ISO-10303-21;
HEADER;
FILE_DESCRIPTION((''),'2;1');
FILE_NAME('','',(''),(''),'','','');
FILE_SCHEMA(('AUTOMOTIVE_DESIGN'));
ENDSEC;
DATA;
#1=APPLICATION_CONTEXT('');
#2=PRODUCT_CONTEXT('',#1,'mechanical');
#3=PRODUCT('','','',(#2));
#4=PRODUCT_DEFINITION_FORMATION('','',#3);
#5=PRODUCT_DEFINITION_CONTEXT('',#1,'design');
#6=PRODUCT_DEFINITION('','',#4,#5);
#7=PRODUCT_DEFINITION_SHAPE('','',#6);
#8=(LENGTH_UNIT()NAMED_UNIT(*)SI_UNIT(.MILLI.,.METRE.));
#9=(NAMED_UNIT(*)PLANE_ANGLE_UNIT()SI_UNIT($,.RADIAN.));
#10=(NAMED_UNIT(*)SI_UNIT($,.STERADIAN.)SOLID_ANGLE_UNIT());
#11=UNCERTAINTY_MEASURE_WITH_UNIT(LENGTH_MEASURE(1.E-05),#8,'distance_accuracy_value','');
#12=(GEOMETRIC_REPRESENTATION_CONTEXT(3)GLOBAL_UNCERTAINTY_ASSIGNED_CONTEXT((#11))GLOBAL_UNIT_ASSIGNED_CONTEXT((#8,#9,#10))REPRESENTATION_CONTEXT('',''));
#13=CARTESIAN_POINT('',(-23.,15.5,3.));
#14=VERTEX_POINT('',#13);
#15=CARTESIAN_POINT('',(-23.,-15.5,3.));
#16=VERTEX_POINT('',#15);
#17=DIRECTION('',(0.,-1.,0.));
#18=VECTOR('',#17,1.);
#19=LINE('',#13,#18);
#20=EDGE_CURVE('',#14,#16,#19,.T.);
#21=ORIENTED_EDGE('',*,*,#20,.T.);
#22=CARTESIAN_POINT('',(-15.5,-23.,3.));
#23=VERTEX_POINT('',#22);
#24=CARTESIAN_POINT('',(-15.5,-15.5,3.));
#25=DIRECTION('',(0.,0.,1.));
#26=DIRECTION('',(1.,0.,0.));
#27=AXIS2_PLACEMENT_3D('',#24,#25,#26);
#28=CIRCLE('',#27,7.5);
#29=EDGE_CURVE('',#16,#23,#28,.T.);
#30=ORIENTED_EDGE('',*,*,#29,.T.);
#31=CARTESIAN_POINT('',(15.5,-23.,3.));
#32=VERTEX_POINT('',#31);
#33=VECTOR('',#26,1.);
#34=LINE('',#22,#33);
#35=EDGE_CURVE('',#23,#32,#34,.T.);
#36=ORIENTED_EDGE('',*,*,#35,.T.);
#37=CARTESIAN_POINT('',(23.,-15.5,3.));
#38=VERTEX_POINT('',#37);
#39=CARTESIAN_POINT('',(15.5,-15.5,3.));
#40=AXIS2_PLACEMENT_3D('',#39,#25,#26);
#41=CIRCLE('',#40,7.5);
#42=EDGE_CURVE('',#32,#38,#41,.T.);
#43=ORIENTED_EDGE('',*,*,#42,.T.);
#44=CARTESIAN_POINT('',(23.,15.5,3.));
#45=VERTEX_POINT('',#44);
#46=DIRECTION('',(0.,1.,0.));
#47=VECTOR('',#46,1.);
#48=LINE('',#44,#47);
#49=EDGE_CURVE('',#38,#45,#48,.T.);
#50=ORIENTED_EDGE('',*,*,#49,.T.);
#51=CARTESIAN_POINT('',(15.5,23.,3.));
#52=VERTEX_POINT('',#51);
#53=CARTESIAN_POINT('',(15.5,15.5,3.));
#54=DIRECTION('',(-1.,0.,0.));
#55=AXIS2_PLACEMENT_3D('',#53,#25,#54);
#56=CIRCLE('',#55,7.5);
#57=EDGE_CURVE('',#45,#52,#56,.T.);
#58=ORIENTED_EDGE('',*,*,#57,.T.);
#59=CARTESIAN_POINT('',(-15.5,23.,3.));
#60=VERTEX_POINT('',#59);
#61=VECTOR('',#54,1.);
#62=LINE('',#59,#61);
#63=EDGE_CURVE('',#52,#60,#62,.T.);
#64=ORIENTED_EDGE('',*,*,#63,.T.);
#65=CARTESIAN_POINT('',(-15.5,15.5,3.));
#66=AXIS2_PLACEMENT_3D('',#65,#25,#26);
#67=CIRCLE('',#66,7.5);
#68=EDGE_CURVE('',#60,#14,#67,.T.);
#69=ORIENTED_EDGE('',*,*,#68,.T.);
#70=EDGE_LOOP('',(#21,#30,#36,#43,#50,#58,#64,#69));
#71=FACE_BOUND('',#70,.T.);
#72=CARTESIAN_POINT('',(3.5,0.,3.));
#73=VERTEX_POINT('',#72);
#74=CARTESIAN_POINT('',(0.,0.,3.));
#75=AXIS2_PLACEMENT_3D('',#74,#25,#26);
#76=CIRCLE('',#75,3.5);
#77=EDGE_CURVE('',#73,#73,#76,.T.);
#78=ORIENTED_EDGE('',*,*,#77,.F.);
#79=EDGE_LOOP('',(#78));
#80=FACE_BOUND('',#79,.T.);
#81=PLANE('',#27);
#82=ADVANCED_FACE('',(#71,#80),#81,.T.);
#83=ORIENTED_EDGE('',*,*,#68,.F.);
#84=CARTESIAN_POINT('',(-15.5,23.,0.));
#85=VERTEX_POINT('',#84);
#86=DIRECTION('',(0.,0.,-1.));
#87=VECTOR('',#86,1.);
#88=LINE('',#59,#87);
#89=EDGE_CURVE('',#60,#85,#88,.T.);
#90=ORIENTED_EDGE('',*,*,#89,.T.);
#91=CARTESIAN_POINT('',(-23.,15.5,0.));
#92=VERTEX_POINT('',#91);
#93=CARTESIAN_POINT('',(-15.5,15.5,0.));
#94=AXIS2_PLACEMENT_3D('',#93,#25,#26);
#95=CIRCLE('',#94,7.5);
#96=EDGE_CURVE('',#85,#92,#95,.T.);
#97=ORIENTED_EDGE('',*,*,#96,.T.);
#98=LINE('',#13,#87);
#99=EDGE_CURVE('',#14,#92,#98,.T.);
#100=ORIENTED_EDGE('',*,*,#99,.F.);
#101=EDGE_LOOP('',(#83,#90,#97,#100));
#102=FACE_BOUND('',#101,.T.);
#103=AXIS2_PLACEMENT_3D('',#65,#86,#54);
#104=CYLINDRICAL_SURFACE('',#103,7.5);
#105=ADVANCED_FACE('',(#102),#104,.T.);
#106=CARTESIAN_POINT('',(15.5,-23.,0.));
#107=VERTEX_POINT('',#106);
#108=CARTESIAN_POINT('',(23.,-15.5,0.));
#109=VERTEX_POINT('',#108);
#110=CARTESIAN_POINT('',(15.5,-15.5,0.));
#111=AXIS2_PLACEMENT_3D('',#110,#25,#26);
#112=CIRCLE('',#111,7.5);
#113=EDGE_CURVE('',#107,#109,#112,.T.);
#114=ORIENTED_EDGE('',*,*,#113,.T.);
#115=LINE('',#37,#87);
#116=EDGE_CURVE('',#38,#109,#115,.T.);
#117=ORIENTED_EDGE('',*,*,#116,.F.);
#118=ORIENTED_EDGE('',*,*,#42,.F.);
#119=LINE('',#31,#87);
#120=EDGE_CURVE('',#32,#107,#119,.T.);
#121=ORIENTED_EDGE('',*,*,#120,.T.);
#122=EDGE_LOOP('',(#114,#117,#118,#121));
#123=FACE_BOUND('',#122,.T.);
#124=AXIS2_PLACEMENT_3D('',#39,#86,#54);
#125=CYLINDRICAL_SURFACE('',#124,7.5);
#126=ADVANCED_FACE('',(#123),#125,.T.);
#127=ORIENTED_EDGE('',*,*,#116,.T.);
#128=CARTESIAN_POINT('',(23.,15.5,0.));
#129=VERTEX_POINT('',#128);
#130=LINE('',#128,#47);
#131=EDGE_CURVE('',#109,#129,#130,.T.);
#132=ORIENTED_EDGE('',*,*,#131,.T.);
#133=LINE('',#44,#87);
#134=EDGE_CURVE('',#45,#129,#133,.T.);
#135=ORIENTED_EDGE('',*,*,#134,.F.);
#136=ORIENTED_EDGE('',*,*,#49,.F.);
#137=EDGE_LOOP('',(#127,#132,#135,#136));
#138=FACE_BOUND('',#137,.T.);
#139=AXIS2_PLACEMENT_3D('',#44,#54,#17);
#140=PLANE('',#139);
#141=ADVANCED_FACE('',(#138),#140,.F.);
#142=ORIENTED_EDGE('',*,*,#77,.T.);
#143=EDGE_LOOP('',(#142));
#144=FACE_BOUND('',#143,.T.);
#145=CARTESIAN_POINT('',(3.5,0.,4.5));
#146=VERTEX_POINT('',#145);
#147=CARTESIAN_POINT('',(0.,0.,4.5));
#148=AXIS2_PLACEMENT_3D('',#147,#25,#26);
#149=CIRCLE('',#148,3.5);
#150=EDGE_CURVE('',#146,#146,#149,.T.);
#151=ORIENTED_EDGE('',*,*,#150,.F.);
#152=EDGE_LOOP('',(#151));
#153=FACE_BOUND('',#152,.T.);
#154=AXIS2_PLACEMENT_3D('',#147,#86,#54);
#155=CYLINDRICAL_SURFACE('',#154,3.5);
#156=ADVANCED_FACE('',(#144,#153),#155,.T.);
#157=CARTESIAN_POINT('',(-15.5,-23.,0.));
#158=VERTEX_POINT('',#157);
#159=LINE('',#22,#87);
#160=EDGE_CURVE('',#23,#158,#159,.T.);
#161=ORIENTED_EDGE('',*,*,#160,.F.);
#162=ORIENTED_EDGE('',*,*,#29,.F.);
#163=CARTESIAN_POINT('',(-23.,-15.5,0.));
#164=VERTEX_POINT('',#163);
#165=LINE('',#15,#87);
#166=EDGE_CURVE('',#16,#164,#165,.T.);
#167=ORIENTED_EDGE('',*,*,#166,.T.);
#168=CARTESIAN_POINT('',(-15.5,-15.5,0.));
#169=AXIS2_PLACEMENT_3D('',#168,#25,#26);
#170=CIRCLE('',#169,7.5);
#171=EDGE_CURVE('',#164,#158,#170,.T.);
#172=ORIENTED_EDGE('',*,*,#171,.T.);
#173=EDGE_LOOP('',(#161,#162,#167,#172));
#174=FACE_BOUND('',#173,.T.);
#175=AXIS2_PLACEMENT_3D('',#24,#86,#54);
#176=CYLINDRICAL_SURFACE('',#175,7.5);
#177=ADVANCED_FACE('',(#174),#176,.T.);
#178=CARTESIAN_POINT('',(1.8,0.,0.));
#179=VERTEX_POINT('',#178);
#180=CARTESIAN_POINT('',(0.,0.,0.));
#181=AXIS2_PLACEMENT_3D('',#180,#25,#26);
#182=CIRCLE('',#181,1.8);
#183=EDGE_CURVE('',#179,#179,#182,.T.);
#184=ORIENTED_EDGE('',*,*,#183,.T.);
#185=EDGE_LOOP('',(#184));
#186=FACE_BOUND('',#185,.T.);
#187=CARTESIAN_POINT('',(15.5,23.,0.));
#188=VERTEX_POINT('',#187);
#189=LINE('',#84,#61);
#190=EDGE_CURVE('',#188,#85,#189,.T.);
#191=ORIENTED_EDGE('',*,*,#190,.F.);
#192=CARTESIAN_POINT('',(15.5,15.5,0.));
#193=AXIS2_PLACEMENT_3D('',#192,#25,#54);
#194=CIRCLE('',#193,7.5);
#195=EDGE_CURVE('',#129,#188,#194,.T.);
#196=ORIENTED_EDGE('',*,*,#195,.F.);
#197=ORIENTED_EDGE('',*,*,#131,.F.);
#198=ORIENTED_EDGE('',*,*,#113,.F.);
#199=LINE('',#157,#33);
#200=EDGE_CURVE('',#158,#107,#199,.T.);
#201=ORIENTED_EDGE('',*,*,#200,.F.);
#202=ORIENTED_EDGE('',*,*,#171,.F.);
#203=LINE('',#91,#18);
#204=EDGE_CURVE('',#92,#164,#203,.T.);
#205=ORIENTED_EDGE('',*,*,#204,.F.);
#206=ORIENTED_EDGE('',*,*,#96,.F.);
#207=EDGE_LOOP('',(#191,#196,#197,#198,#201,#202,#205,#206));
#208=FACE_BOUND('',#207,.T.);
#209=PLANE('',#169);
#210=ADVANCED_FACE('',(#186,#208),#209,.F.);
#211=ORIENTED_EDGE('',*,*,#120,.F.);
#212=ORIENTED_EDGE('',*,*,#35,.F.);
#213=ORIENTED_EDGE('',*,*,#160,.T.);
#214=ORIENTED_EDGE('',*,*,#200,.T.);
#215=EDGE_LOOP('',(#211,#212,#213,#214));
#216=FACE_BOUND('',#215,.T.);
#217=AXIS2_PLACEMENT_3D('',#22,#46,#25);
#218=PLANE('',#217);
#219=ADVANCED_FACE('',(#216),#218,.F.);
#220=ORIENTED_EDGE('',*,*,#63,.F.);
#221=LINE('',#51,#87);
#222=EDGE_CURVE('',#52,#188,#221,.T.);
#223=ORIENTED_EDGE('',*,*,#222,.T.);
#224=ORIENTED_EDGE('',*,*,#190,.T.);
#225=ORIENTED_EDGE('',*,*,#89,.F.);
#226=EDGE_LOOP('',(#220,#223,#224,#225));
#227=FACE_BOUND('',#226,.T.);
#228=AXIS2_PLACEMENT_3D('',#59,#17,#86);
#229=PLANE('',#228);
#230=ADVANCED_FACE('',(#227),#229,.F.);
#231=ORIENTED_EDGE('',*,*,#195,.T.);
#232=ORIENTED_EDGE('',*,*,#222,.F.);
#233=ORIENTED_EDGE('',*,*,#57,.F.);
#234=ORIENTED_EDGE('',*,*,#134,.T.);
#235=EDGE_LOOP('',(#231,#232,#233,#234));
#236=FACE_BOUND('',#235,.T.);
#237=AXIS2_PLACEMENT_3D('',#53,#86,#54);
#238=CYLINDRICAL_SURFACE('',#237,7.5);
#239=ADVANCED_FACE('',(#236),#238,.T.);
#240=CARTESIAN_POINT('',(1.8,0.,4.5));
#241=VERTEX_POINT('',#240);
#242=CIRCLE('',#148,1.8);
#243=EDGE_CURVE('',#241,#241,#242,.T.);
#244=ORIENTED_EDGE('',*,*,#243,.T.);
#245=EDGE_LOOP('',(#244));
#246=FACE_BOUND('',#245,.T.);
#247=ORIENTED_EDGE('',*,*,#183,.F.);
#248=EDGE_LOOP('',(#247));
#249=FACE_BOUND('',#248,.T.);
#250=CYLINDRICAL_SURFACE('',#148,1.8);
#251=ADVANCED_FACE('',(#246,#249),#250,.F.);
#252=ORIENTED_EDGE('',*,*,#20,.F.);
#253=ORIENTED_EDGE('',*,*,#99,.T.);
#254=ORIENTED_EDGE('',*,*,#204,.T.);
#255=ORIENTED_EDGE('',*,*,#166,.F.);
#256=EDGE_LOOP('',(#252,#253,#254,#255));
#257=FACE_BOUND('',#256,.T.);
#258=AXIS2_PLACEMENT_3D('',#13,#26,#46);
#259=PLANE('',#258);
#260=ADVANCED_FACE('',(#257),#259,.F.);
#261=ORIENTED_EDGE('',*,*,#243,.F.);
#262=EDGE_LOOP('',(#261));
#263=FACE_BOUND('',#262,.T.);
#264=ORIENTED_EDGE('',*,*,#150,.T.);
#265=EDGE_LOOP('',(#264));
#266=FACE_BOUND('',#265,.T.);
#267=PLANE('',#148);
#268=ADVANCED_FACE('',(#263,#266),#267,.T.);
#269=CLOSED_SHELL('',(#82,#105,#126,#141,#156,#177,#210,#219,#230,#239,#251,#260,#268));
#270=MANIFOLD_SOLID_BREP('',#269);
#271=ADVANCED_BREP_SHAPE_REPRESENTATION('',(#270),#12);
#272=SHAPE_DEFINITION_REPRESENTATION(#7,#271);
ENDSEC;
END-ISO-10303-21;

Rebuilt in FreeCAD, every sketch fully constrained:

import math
import FreeCAD as App
import Part
import Sketcher
from FreeCAD import Vector
Q = App.Units.Quantity

doc = App.newDocument("Part")
body = doc.addObject("PartDesign::Body", "Body")

sketch1 = body.newObject("Sketcher::SketchObject", "Sketch")
sketch1.AttachmentSupport = (doc.getObject("XY_Plane"), [""])
sketch1.MapMode = "FlatFace"
sketch1.addGeometry(Part.LineSegment(Vector(16, 23, 0), Vector(-16, 23, 0)), False)
sketch1.addGeometry(Part.ArcOfCircle(Part.Circle(Vector(-16, 16, 0), Vector(0, 0, 1), 8), math.radians(90), math.radians(180)), False)
sketch1.addGeometry(Part.LineSegment(Vector(-23, 16, 0), Vector(-23, -16, 0)), False)
sketch1.addGeometry(Part.ArcOfCircle(Part.Circle(Vector(-16, -16, 0), Vector(0, 0, 1), 8), math.radians(180), math.radians(270)), False)
sketch1.addGeometry(Part.LineSegment(Vector(-16, -23, 0), Vector(16, -23, 0)), False)
sketch1.addGeometry(Part.ArcOfCircle(Part.Circle(Vector(16, -16, 0), Vector(0, 0, 1), 8), math.radians(-90), math.radians(0)), False)
sketch1.addGeometry(Part.LineSegment(Vector(23, -16, 0), Vector(23, 16, 0)), False)
sketch1.addGeometry(Part.ArcOfCircle(Part.Circle(Vector(16, 16, 0), Vector(0, 0, 1), 8), math.radians(0), math.radians(90)), False)
sketch1.addConstraint(Sketcher.Constraint("Tangent", 0, 2, 1, 1))
sketch1.addConstraint(Sketcher.Constraint("Tangent", 1, 2, 2, 1))
sketch1.addConstraint(Sketcher.Constraint("Tangent", 2, 2, 3, 1))
sketch1.addConstraint(Sketcher.Constraint("Tangent", 3, 2, 4, 1))
sketch1.addConstraint(Sketcher.Constraint("Tangent", 4, 2, 5, 1))
sketch1.addConstraint(Sketcher.Constraint("Tangent", 5, 2, 6, 1))
sketch1.addConstraint(Sketcher.Constraint("Tangent", 6, 2, 7, 1))
sketch1.addConstraint(Sketcher.Constraint("Tangent", 7, 2, 0, 1))
sketch1.addConstraint(Sketcher.Constraint("Horizontal", 0))
sketch1.addConstraint(Sketcher.Constraint("Vertical", 2))
sketch1.addConstraint(Sketcher.Constraint("Horizontal", 4))
sketch1.addConstraint(Sketcher.Constraint("Vertical", 6))
sketch1.addConstraint(Sketcher.Constraint("Equal", 1, 3))
sketch1.addConstraint(Sketcher.Constraint("Equal", 3, 5))
sketch1.addConstraint(Sketcher.Constraint("Equal", 5, 7))
sketch1.addConstraint(Sketcher.Constraint("Symmetric", 1, 3, 5, 3, -1, 1))
sketch1.addConstraint(Sketcher.Constraint("Equal", 4, 2))
sketch1.addConstraint(Sketcher.Constraint("Radius", 1, Q("7.5 mm")))
sketch1.addConstraint(Sketcher.Constraint("DistanceX", 0, 2, 0, 1, Q("31 mm")))
pad1 = body.newObject("PartDesign::Pad", "Pad")
pad1.Profile = sketch1
pad1.Length = 3

sketch2 = body.newObject("Sketcher::SketchObject", "Sketch001")
sketch2.AttachmentSupport = (doc.getObject("XY_Plane"), [""])
sketch2.MapMode = "FlatFace"
sketch2.AttachmentOffset = App.Placement(Vector(0, 0, 3), App.Rotation())
sketch2.addGeometry(Part.Circle(Vector(0, 0, 0), Vector(0, 0, 1), 3.5), False)
sketch2.addConstraint(Sketcher.Constraint("Coincident", 0, 3, -1, 1))
sketch2.addConstraint(Sketcher.Constraint("Diameter", 0, Q("7 mm")))
pad2 = body.newObject("PartDesign::Pad", "Pad001")
pad2.Profile = sketch2
pad2.Length = 1.5

sketch3 = body.newObject("Sketcher::SketchObject", "Sketch002")
sketch3.AttachmentSupport = (doc.getObject("XY_Plane"), [""])
sketch3.MapMode = "FlatFace"
sketch3.addGeometry(Part.Circle(Vector(0, 0, 0), Vector(0, 0, 1), 1.8), False)
sketch3.addConstraint(Sketcher.Constraint("Coincident", 0, 3, -1, 1))
sketch3.addConstraint(Sketcher.Constraint("Diameter", 0, Q("3.6 mm")))
doc.recompute()
hole = body.newObject("PartDesign::Hole", "Hole")
hole.Profile = sketch3
hole.ThreadType = "None"
hole.Diameter = 3.6
hole.DepthType = "ThroughAll"
hole.Reversed = True

sketch4 = body.newObject("Sketcher::SketchObject", "Sketch003")
sketch4.AttachmentSupport = (doc.getObject("XY_Plane"), [""])
sketch4.MapMode = "FlatFace"
sketch4.AttachmentOffset = App.Placement(Vector(0, 0, 4.5), App.Rotation())
sketch4.addGeometry(Part.Circle(Vector(0, 0, 0), Vector(0, 0, 1), 1.8), False)
sketch4.addConstraint(Sketcher.Constraint("Coincident", 0, 3, -1, 1))
sketch4.addConstraint(Sketcher.Constraint("Diameter", 0, Q("3.6 mm")))
doc.recompute()
hole2 = body.newObject("PartDesign::Hole", "Hole001")
hole2.Profile = sketch4
hole2.ThreadType = "None"
hole2.Diameter = 3.6
hole2.DepthType = "ThroughAll"

doc.recompute()
